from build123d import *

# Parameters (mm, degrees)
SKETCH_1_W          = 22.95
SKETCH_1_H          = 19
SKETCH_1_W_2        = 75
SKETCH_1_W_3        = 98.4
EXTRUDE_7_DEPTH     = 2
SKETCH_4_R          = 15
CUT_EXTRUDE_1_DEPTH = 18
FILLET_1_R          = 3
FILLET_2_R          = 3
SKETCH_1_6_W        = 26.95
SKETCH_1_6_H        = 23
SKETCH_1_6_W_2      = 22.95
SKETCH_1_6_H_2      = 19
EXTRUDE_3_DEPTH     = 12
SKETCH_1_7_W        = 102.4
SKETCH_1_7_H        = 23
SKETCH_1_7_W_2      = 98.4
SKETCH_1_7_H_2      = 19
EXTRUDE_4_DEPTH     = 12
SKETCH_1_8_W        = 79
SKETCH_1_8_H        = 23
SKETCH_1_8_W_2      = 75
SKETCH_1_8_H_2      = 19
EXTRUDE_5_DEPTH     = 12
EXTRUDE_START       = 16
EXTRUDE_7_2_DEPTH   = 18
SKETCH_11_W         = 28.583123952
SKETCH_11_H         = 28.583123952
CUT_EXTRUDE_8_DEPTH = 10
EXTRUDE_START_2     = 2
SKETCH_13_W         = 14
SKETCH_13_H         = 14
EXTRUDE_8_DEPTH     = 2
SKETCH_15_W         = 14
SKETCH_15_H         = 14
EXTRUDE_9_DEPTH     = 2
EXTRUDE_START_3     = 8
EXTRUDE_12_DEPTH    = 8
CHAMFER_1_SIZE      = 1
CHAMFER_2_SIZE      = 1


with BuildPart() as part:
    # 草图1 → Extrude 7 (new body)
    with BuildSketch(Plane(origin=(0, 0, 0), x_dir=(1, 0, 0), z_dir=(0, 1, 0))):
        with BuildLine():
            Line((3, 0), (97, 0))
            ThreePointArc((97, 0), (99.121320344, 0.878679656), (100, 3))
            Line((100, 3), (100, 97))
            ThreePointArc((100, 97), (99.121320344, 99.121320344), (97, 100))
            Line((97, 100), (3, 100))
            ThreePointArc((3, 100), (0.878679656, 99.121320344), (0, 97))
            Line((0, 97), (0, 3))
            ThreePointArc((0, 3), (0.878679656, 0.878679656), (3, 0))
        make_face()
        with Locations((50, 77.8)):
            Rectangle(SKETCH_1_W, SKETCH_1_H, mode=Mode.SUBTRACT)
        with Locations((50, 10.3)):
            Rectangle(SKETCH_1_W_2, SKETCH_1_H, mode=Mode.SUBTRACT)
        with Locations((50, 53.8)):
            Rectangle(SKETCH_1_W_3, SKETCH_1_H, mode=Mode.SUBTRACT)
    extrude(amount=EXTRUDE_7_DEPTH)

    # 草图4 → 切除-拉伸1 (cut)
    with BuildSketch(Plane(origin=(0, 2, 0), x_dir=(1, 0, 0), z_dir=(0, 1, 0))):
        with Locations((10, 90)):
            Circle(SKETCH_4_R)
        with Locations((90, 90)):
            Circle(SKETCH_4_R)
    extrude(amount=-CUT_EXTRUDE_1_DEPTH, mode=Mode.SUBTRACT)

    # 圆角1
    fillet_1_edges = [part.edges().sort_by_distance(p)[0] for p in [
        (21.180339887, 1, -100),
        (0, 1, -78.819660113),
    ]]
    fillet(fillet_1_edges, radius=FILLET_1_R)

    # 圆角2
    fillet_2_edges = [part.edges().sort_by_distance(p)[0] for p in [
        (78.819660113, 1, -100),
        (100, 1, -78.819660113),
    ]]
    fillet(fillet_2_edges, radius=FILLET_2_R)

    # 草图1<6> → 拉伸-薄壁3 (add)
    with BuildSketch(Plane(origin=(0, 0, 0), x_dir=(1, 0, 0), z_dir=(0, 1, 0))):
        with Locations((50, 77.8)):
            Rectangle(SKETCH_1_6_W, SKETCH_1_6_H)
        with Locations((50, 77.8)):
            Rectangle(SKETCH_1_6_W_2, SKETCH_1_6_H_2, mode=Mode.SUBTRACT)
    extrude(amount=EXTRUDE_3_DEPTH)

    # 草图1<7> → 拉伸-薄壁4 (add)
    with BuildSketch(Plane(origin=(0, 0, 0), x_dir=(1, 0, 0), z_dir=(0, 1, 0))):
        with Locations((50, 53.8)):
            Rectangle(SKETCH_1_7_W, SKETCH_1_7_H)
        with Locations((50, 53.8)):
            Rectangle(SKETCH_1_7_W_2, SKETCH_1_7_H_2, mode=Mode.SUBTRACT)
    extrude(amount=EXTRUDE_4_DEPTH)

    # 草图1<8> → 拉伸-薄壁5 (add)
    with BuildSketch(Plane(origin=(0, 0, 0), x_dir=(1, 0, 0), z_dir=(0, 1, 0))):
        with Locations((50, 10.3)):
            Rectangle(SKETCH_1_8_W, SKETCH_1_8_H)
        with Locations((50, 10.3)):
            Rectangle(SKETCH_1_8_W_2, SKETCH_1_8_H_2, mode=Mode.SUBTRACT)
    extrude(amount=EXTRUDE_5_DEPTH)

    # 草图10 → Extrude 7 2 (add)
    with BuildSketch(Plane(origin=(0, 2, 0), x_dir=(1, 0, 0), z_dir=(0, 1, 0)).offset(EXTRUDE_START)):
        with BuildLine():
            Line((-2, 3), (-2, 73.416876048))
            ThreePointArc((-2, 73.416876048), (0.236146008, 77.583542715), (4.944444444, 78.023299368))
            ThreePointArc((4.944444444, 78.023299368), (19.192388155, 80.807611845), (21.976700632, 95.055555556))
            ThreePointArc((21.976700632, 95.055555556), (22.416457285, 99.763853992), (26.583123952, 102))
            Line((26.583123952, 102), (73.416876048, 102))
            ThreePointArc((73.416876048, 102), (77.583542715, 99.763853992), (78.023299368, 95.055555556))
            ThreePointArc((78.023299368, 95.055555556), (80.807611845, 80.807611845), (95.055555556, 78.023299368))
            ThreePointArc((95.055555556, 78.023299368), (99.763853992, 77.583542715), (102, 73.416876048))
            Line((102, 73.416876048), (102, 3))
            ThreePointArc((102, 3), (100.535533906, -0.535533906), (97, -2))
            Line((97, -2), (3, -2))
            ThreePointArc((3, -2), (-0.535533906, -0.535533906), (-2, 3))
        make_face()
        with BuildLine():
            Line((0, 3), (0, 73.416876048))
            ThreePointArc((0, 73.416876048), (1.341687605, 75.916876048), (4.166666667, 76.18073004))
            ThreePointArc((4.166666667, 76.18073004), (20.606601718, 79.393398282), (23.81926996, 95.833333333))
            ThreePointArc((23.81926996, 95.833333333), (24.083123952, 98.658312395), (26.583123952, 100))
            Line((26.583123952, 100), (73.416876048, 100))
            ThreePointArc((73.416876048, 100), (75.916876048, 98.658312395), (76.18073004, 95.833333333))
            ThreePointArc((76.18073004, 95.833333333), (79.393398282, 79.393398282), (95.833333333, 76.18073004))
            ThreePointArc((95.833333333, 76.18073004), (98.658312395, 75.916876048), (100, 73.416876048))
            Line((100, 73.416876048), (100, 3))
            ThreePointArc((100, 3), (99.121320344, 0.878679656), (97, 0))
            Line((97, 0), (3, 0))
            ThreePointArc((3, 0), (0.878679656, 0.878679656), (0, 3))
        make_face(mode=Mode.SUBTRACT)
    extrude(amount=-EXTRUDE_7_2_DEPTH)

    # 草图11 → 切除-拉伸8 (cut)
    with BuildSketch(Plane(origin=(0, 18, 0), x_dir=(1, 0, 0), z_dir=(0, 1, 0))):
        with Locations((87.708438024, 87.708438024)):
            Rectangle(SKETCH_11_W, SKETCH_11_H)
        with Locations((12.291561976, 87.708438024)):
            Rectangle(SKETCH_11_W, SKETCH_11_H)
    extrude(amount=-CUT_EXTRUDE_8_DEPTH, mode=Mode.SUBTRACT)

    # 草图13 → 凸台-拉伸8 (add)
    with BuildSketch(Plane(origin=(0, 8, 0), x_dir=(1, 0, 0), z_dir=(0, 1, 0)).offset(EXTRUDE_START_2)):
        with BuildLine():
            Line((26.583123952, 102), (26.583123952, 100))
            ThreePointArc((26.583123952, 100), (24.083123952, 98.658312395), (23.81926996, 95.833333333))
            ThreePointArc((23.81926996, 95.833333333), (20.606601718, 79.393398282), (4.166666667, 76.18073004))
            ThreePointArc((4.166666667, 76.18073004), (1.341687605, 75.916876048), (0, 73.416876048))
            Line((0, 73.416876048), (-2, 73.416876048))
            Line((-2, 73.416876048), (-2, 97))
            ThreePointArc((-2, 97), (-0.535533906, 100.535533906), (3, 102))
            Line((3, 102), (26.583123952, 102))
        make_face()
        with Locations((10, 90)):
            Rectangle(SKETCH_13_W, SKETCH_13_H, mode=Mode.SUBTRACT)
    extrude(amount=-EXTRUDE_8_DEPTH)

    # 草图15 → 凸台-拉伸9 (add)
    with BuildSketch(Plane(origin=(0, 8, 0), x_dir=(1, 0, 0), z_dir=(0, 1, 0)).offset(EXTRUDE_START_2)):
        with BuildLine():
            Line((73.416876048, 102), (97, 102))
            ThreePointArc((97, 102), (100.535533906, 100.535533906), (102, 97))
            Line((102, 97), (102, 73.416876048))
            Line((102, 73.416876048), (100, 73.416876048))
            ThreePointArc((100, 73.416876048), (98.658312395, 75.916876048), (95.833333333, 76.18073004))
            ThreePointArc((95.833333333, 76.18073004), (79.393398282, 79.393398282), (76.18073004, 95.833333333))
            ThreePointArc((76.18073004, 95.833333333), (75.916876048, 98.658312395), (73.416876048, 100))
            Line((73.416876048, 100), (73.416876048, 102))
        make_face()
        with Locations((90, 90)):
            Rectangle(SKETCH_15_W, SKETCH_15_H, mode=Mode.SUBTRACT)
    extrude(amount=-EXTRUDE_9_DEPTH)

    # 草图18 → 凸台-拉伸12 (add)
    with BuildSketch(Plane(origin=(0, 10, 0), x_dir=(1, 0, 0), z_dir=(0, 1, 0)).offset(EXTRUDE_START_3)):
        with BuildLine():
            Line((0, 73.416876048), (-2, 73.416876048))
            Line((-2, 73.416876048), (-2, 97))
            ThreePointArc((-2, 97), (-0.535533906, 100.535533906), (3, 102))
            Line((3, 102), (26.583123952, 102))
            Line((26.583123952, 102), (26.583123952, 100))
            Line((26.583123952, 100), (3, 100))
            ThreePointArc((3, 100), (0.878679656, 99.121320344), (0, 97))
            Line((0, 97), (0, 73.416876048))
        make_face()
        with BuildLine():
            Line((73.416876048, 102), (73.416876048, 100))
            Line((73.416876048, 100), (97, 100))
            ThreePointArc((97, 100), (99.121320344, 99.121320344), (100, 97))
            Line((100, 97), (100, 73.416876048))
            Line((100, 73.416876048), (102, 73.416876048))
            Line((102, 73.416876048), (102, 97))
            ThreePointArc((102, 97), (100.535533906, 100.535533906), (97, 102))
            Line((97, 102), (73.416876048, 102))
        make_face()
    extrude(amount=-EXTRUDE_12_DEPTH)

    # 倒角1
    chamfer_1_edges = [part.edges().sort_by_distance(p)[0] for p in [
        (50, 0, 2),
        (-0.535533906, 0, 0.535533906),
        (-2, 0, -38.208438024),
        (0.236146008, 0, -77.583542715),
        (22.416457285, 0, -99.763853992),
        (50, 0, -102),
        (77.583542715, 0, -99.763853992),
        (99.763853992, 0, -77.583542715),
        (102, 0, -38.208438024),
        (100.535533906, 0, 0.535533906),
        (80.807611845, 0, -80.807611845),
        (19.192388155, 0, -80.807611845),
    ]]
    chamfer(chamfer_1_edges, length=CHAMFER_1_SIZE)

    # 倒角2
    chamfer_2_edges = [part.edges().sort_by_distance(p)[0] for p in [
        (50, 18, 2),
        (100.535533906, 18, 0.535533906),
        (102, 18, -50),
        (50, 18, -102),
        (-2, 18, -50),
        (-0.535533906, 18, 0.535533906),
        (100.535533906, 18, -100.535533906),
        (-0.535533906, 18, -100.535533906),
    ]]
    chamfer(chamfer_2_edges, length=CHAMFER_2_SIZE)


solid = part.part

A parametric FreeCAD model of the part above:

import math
import FreeCAD as App
import Part
import Sketcher
Q = App.Units.Quantity


def edges_at(feature, points):
    """Names of the edges that pass closest to the given points."""
    edges = feature.Shape.Edges
    near = lambda p: min(range(len(edges)), key=lambda i: edges[i].distToShape(Part.Vertex(*p))[0])
    return sorted({f"Edge{near(p) + 1}" for p in points})


def add_polygon(sketch, points):
    """Adds a closed chain of lines whose ends are joined by coincident constraints."""
    first, n = sketch.GeometryCount, len(points)
    for a, b in zip(points, points[1:] + points[:1]):
        sketch.addGeometry(Part.LineSegment(App.Vector(*a, 0), App.Vector(*b, 0)), False)
    for i in range(n):
        sketch.addConstraint(Sketcher.Constraint("Coincident", first + i, 2, first + (i + 1) % n, 1))

doc = App.newDocument("Part")
params = doc.addObject("Spreadsheet::Sheet", "Params")
for row, (alias, value) in enumerate([
    ("sketch1_radius", "3 mm"),
    ("sketch1_width", "94 mm"),
    ("sketch1_width2", "75 mm"),
    ("sketch1_height", "19 mm"),
    ("sketch1_width3", "98.4 mm"),
    ("pad1_length", "2 mm"),
    ("sketch2_diameter", "30 mm"),
    ("pocket1_length", "18 mm"),
    ("fillet_radius", "3 mm"),
    ("fillet2_radius", "3 mm"),
    ("sketch3_height", "23 mm"),
    ("sketch3_height2", "19 mm"),
    ("sketch3_width", "26.95 mm"),
    ("pad2_length", "12 mm"),
    ("sketch4_height", "23 mm"),
    ("sketch4_height2", "19 mm"),
    ("sketch4_width", "102.4 mm"),
    ("sketch4_width2", "98.4 mm"),
    ("pad3_length", "12 mm"),
    ("sketch5_width", "79 mm"),
    ("sketch5_width2", "75 mm"),
    ("sketch5_height", "23 mm"),
    ("sketch5_height2", "19 mm"),
    ("pad4_length", "12 mm"),
    ("sketch6_radius", "5 mm"),
    ("sketch6_radius2", "13 mm"),
    ("sketch6_radius3", "3 mm"),
    ("sketch6_width", "94 mm"),
    ("pad5_length", "18 mm"),
    ("pocket2_length", "10 mm"),
    ("sketch8_radius", "5 mm"),
    ("sketch8_radius2", "3 mm"),
    ("sketch8_radius3", "15 mm"),
    ("sketch8_width", "14 mm"),
    ("pad6_length", "2 mm"),
    ("sketch9_radius", "3 mm"),
    ("sketch9_radius2", "15 mm"),
    ("sketch9_radius3", "5 mm"),
    ("sketch9_width", "14 mm"),
    ("pad7_length", "2 mm"),
    ("sketch10_radius", "3 mm"),
    ("sketch10_radius2", "5 mm"),
    ("pad8_length", "8 mm"),
    ("chamfer_size", "1 mm"),
    ("chamfer2_size", "1 mm"),
], start=1):
    params.set(f"A{row}", alias)
    params.set(f"B{row}", "=" + value)
    params.setAlias(f"B{row}", alias)

body = doc.addObject("PartDesign::Body", "Body")

# Sketch on XZ plane
sketch1 = doc.addObject("Sketcher::SketchObject", "Sketch")
body.addObject(sketch1)
sketch1.AttachmentSupport = (doc.XZ_Plane, [""])
sketch1.MapMode = "FlatFace"
sketch1.addGeometry(Part.LineSegment(App.Vector(3, 0, 0), App.Vector(97, 0, 0)), False)  # 0
sketch1.addGeometry(Part.ArcOfCircle(Part.Circle(App.Vector(97, -3, 0), App.Vector(0, 0, 1), 3), math.radians(0), math.radians(90)), False)  # 1
sketch1.addGeometry(Part.LineSegment(App.Vector(100, -3, 0), App.Vector(100, -97, 0)), False)  # 2
sketch1.addGeometry(Part.ArcOfCircle(Part.Circle(App.Vector(97, -97, 0), App.Vector(0, 0, 1), 3), math.radians(-90), math.radians(0)), False)  # 3
sketch1.addGeometry(Part.LineSegment(App.Vector(97, -100, 0), App.Vector(3, -100, 0)), False)  # 4
sketch1.addGeometry(Part.ArcOfCircle(Part.Circle(App.Vector(3, -97, 0), App.Vector(0, 0, 1), 3), math.radians(180), math.radians(270)), False)  # 5
sketch1.addGeometry(Part.LineSegment(App.Vector(0, -97, 0), App.Vector(0, -3, 0)), False)  # 6
sketch1.addGeometry(Part.ArcOfCircle(Part.Circle(App.Vector(3, -3, 0), App.Vector(0, 0, 1), 3), math.radians(90), math.radians(180)), False)  # 7
add_polygon(sketch1, [(87.5, -0.8), (12.5, -0.8), (12.5, -19.8), (87.5, -19.8)])  # lines 8-11
add_polygon(sketch1, [(99.2, -44.3), (0.8, -44.3), (0.8, -63.3), (99.2, -63.3)])  # lines 12-15
add_polygon(sketch1, [(61.475, -68.3), (38.525, -68.3), (38.525, -87.3), (61.475, -87.3)])  # lines 16-19
sketch1.addConstraint([
    Sketcher.Constraint("Tangent", 0, 2, 1, 2),
    Sketcher.Constraint("Tangent", 1, 1, 2, 1),
    Sketcher.Constraint("Tangent", 2, 2, 3, 2),
    Sketcher.Constraint("Tangent", 3, 1, 4, 1),
    Sketcher.Constraint("Tangent", 4, 2, 5, 2),
    Sketcher.Constraint("Tangent", 5, 1, 6, 1),
    Sketcher.Constraint("Tangent", 6, 2, 7, 2),
    Sketcher.Constraint("Tangent", 7, 1, 0, 1),
    Sketcher.Constraint("Horizontal", 0),
    Sketcher.Constraint("Vertical", 2),
    Sketcher.Constraint("Horizontal", 4),
    Sketcher.Constraint("Vertical", 6),
    Sketcher.Constraint("Horizontal", 8),
    Sketcher.Constraint("Vertical", 9),
    Sketcher.Constraint("Horizontal", 10),
    Sketcher.Constraint("Vertical", 11),
    Sketcher.Constraint("Horizontal", 12),
    Sketcher.Constraint("Vertical", 13),
    Sketcher.Constraint("Horizontal", 14),
    Sketcher.Constraint("Vertical", 15),
    Sketcher.Constraint("Horizontal", 16),
    Sketcher.Constraint("Vertical", 17),
    Sketcher.Constraint("Horizontal", 18),
    Sketcher.Constraint("Vertical", 19),
    Sketcher.Constraint("Equal", 1, 3),
    Sketcher.Constraint("Equal", 3, 5),
    Sketcher.Constraint("Equal", 5, 7),
    Sketcher.Constraint("PointOnObject", 0, 2, -1),
    Sketcher.Constraint("PointOnObject", 5, 1, -2),
    Sketcher.Constraint("Equal", 4, 2),
    Sketcher.Constraint("Equal", 11, 13),
    Sketcher.Constraint("Equal", 15, 17),
    Sketcher.Constraint("Radius", 1, Q("3 mm")),
    Sketcher.Constraint("DistanceX", 0, 1, 0, 2, Q("94 mm")),
    Sketcher.Constraint("DistanceX", 8, 2, 8, 1, Q("75 mm")),
    Sketcher.Constraint("DistanceY", 9, 2, 9, 1, Q("19 mm")),
    Sketcher.Constraint("DistanceX", 12, 2, 12, 1, Q("98.4 mm")),
    Sketcher.Constraint("DistanceY", 16, 2, 13, 2, Q("5 mm")),
    Sketcher.Constraint("DistanceX", 16, 2, 16, 1, Q("22.95 mm")),
    Sketcher.Constraint("DistanceX", -1, 1, 8, 2, Q("12.5 mm")),
    Sketcher.Constraint("DistanceY", 8, 2, -1, 1, Q("0.8 mm")),
    Sketcher.Constraint("DistanceX", -1, 1, 12, 2, Q("0.8 mm")),
    Sketcher.Constraint("DistanceY", 12, 2, -1, 1, Q("44.3 mm")),
    Sketcher.Constraint("DistanceX", -1, 1, 16, 2, Q("38.525 mm")),
])
sketch1.setExpression("Constraints[44]", "Params.sketch1_radius")
sketch1.setExpression("Constraints[45]", "Params.sketch1_width")
sketch1.setExpression("Constraints[46]", "Params.sketch1_width2")
sketch1.setExpression("Constraints[47]", "Params.sketch1_height")
sketch1.setExpression("Constraints[48]", "Params.sketch1_width3")
pad1 = doc.addObject("PartDesign::Pad", "Pad")
body.addObject(pad1)
pad1.Profile = sketch1
pad1.setExpression("Length", "Params.pad1_length")
pad1.Reversed = True

# Sketch on XZ plane
sketch2 = doc.addObject("Sketcher::SketchObject", "Sketch001")
body.addObject(sketch2)
sketch2.AttachmentSupport = (doc.XZ_Plane, [""])
sketch2.MapMode = "FlatFace"
sketch2.AttachmentOffset = App.Placement(App.Vector(0, 0, -2), App.Rotation())
sketch2.addGeometry([
    Part.Circle(App.Vector(10, -90, 0), App.Vector(0, 0, 1), 15),
    Part.Circle(App.Vector(90, -90, 0), App.Vector(0, 0, 1), 15),
], False)
sketch2.addConstraint([
    Sketcher.Constraint("Equal", 0, 1),
    Sketcher.Constraint("Horizontal", 0, 3, 1, 3),
    Sketcher.Constraint("Diameter", 0, Q("30 mm")),
    Sketcher.Constraint("DistanceX", -1, 1, 0, 3, Q("10 mm")),
    Sketcher.Constraint("DistanceY", 0, 3, -1, 1, Q("90 mm")),
    Sketcher.Constraint("DistanceX", -1, 1, 1, 3, Q("90 mm")),
])
sketch2.setExpression("Constraints[2]", "Params.sketch2_diameter")
pocket1 = doc.addObject("PartDesign::Pocket", "Pocket")
body.addObject(pocket1)
pocket1.Profile = sketch2
pocket1.setExpression("Length", "Params.pocket1_length")
pocket1.Reversed = True
doc.recompute()

fillet = doc.addObject("PartDesign::Fillet", "Fillet")
body.addObject(fillet)
fillet.Base = (pocket1, edges_at(pocket1, [(21.18, 1, -100), (0, 1, -78.82)]))
fillet.setExpression("Radius", "Params.fillet_radius")
doc.recompute()

fillet2 = doc.addObject("PartDesign::Fillet", "Fillet001")
body.addObject(fillet2)
fillet2.Base = (fillet, edges_at(fillet, [(78.82, 1, -100), (100, 1, -78.82)]))
fillet2.setExpression("Radius", "Params.fillet2_radius")

# Sketch on XZ plane
sketch3 = doc.addObject("Sketcher::SketchObject", "Sketch002")
body.addObject(sketch3)
sketch3.AttachmentSupport = (doc.XZ_Plane, [""])
sketch3.MapMode = "FlatFace"
add_polygon(sketch3, [(36.525, -89.3), (36.525, -66.3), (63.475, -66.3), (63.475, -89.3)])  # lines 0-3
add_polygon(sketch3, [(61.475, -68.3), (38.525, -68.3), (38.525, -87.3), (61.475, -87.3)])  # lines 4-7
sketch3.addConstraint([
    Sketcher.Constraint("Vertical", 0),
    Sketcher.Constraint("Horizontal", 1),
    Sketcher.Constraint("Vertical", 2),
    Sketcher.Constraint("Horizontal", 3),
    Sketcher.Constraint("Horizontal", 4),
    Sketcher.Constraint("Vertical", 5),
    Sketcher.Constraint("Horizontal", 6),
    Sketcher.Constraint("Vertical", 7),
    Sketcher.Constraint("DistanceY", 0, 1, 0, 2, Q("23 mm")),
    Sketcher.Constraint("DistanceY", 5, 2, 5, 1, Q("19 mm")),
    Sketcher.Constraint("DistanceX", 0, 2, 4, 2, Q("2 mm")),
    Sketcher.Constraint("DistanceY", 4, 2, 0, 2, Q("2 mm")),
    Sketcher.Constraint("DistanceX", 6, 2, 2, 2, Q("2 mm")),
    Sketcher.Constraint("DistanceX", 1, 1, 1, 2, Q("26.95 mm")),
    Sketcher.Constraint("DistanceY", 0, 2, -1, 1, Q("66.3 mm")),
    Sketcher.Constraint("DistanceX", -1, 1, 0, 2, Q("36.525 mm")),
])
sketch3.setExpression("Constraints[16]", "Params.sketch3_height")
sketch3.setExpression("Constraints[17]", "Params.sketch3_height2")
sketch3.setExpression("Constraints[21]", "Params.sketch3_width")
pad2 = doc.addObject("PartDesign::Pad", "Pad001")
body.addObject(pad2)
pad2.Profile = sketch3
pad2.setExpression("Length", "Params.pad2_length")
pad2.Reversed = True

# Sketch on XZ plane
sketch4 = doc.addObject("Sketcher::SketchObject", "Sketch003")
body.addObject(sketch4)
sketch4.AttachmentSupport = (doc.XZ_Plane, [""])
sketch4.MapMode = "FlatFace"
add_polygon(sketch4, [(-1.2, -65.3), (-1.2, -42.3), (101.2, -42.3), (101.2, -65.3)])  # lines 0-3
add_polygon(sketch4, [(99.2, -44.3), (0.8, -44.3), (0.8, -63.3), (99.2, -63.3)])  # lines 4-7
sketch4.addConstraint([
    Sketcher.Constraint("Vertical", 0),
    Sketcher.Constraint("Horizontal", 1),
    Sketcher.Constraint("Vertical", 2),
    Sketcher.Constraint("Horizontal", 3),
    Sketcher.Constraint("Horizontal", 4),
    Sketcher.Constraint("Vertical", 5),
    Sketcher.Constraint("Horizontal", 6),
    Sketcher.Constraint("Vertical", 7),
    Sketcher.Constraint("DistanceY", 0, 1, 0, 2, Q("23 mm")),
    Sketcher.Constraint("DistanceY", 5, 2, 5, 1, Q("19 mm")),
    Sketcher.Constraint("DistanceX", 1, 1, 1, 2, Q("102.4 mm")),
    Sketcher.Constraint("DistanceX", 4, 2, 4, 1, Q("98.4 mm")),
    Sketcher.Constraint("DistanceX", 0, 2, 4, 2, Q("2 mm")),
    Sketcher.Constraint("DistanceY", 4, 2, 0, 2, Q("2 mm")),
    Sketcher.Constraint("DistanceX", 0, 2, -1, 1, Q("1.2 mm")),
    Sketcher.Constraint("DistanceY", 0, 2, -1, 1, Q("42.3 mm")),
])
sketch4.setExpression("Constraints[16]", "Params.sketch4_height")
sketch4.setExpression("Constraints[17]", "Params.sketch4_height2")
sketch4.setExpression("Constraints[18]", "Params.sketch4_width")
sketch4.setExpression("Constraints[19]", "Params.sketch4_width2")
pad3 = doc.addObject("PartDesign::Pad", "Pad002")
body.addObject(pad3)
pad3.Profile = sketch4
pad3.setExpression("Length", "Params.pad3_length")
pad3.Reversed = True

# Sketch on XZ plane
sketch5 = doc.addObject("Sketcher::SketchObject", "Sketch004")
body.addObject(sketch5)
sketch5.AttachmentSupport = (doc.XZ_Plane, [""])
sketch5.MapMode = "FlatFace"
add_polygon(sketch5, [(10.5, -21.8), (10.5, 1.2), (89.5, 1.2), (89.5, -21.8)])  # lines 0-3
add_polygon(sketch5, [(87.5, -0.8), (12.5, -0.8), (12.5, -19.8), (87.5, -19.8)])  # lines 4-7
sketch5.addConstraint([
    Sketcher.Constraint("Vertical", 0),
    Sketcher.Constraint("Horizontal", 1),
    Sketcher.Constraint("Vertical", 2),
    Sketcher.Constraint("Horizontal", 3),
    Sketcher.Constraint("Horizontal", 4),
    Sketcher.Constraint("Vertical", 5),
    Sketcher.Constraint("Horizontal", 6),
    Sketcher.Constraint("Vertical", 7),
    Sketcher.Constraint("DistanceX", 1, 1, 1, 2, Q("79 mm")),
    Sketcher.Constraint("DistanceX", 4, 2, 4, 1, Q("75 mm")),
    Sketcher.Constraint("DistanceY", 0, 1, 0, 2, Q("23 mm")),
    Sketcher.Constraint("DistanceY", 5, 2, 5, 1, Q("19 mm")),
    Sketcher.Constraint("DistanceX", 0, 2, 4, 2, Q("2 mm")),
    Sketcher.Constraint("DistanceY", 4, 2, 0, 2, Q("2 mm")),
    Sketcher.Constraint("DistanceX", -1, 1, 0, 2, Q("10.5 mm")),
    Sketcher.Constraint("DistanceY", -1, 1, 0, 2, Q("1.2 mm")),
])
sketch5.setExpression("Constraints[16]", "Params.sketch5_width")
sketch5.setExpression("Constraints[17]", "Params.sketch5_width2")
sketch5.setExpression("Constraints[18]", "Params.sketch5_height")
sketch5.setExpression("Constraints[19]", "Params.sketch5_height2")
pad4 = doc.addObject("PartDesign::Pad", "Pad003")
body.addObject(pad4)
pad4.Profile = sketch5
pad4.setExpression("Length", "Params.pad4_length")
pad4.Reversed = True

# Sketch on XZ plane
sketch6 = doc.addObject("Sketcher::SketchObject", "Sketch005")
body.addObject(sketch6)
sketch6.AttachmentSupport = (doc.XZ_Plane, [""])
sketch6.MapMode = "FlatFace"
sketch6.AttachmentOffset = App.Placement(App.Vector(0, 0, -18), App.Rotation())
sketch6.addGeometry([
    Part.LineSegment(App.Vector(-2, -73.416876, 0), App.Vector(-2, -3, 0)),  # 0
    Part.ArcOfCircle(Part.Circle(App.Vector(3, -3, 0), App.Vector(0, 0, 1), 5), math.radians(90), math.radians(180)),  # 1
    Part.LineSegment(App.Vector(3, 2, 0), App.Vector(97, 2, 0)),  # 2
    Part.ArcOfCircle(Part.Circle(App.Vector(97, -3, 0), App.Vector(0, 0, 1), 5), math.radians(0), math.radians(90)),  # 3
    Part.LineSegment(App.Vector(102, -3, 0), App.Vector(102, -73.416876, 0)),  # 4
    Part.ArcOfCircle(Part.Circle(App.Vector(97, -73.416876, 0), App.Vector(0, 0, 1), 5), math.radians(-112.88538), math.radians(0)),  # 5
    Part.ArcOfCircle(Part.Circle(App.Vector(90, -90, 0), App.Vector(0, 0, 1), 13), math.radians(67.11462), math.radians(202.88538)),  # 6
    Part.ArcOfCircle(Part.Circle(App.Vector(73.416876, -97, 0), App.Vector(0, 0, 1), 5), math.radians(-90), math.radians(22.88538)),  # 7
    Part.LineSegment(App.Vector(73.416876, -102, 0), App.Vector(26.583124, -102, 0)),  # 8
    Part.ArcOfCircle(Part.Circle(App.Vector(26.583124, -97, 0), App.Vector(0, 0, 1), 5), math.radians(157.11462), math.radians(270)),  # 9
    Part.ArcOfCircle(Part.Circle(App.Vector(10, -90, 0), App.Vector(0, 0, 1), 13), math.radians(-22.88538), math.radians(112.88538)),  # 10
    Part.ArcOfCircle(Part.Circle(App.Vector(3, -73.416876, 0), App.Vector(0, 0, 1), 5), math.radians(180), math.radians(292.88538)),  # 11
    Part.LineSegment(App.Vector(0, -3, 0), App.Vector(0, -73.416876, 0)),  # 12
    Part.ArcOfCircle(Part.Circle(App.Vector(3, -73.416876, 0), App.Vector(0, 0, 1), 3), math.radians(180), math.radians(292.88538)),  # 13
    Part.ArcOfCircle(Part.Circle(App.Vector(10, -90, 0), App.Vector(0, 0, 1), 15), math.radians(-22.88538), math.radians(112.88538)),  # 14
    Part.ArcOfCircle(Part.Circle(App.Vector(26.583124, -97, 0), App.Vector(0, 0, 1), 3), math.radians(157.11462), math.radians(270)),  # 15
    Part.LineSegment(App.Vector(26.583124, -100, 0), App.Vector(73.416876, -100, 0)),  # 16
    Part.ArcOfCircle(Part.Circle(App.Vector(73.416876, -97, 0), App.Vector(0, 0, 1), 3), math.radians(-90), math.radians(22.88538)),  # 17
    Part.ArcOfCircle(Part.Circle(App.Vector(90, -90, 0), App.Vector(0, 0, 1), 15), math.radians(67.11462), math.radians(202.88538)),  # 18
    Part.ArcOfCircle(Part.Circle(App.Vector(97, -73.416876, 0), App.Vector(0, 0, 1), 3), math.radians(-112.88538), math.radians(0)),  # 19
    Part.LineSegment(App.Vector(100, -73.416876, 0), App.Vector(100, -3, 0)),  # 20
    Part.ArcOfCircle(Part.Circle(App.Vector(97, -3, 0), App.Vector(0, 0, 1), 3), math.radians(0), math.radians(90)),  # 21
    Part.LineSegment(App.Vector(97, 0, 0), App.Vector(3, 0, 0)),  # 22
    Part.ArcOfCircle(Part.Circle(App.Vector(3, -3, 0), App.Vector(0, 0, 1), 3), math.radians(90), math.radians(180)),  # 23
], False)
sketch6.addConstraint([
    Sketcher.Constraint("Tangent", 0, 2, 1, 2),
    Sketcher.Constraint("Tangent", 1, 1, 2, 1),
    Sketcher.Constraint("Tangent", 2, 2, 3, 2),
    Sketcher.Constraint("Tangent", 3, 1, 4, 1),
    Sketcher.Constraint("Tangent", 4, 2, 5, 2),
    Sketcher.Constraint("Tangent", 5, 1, 6, 1),
    Sketcher.Constraint("Tangent", 6, 2, 7, 2),
    Sketcher.Constraint("Tangent", 7, 1, 8, 1),
    Sketcher.Constraint("Tangent", 8, 2, 9, 2),
    Sketcher.Constraint("Tangent", 9, 1, 10, 1),
    Sketcher.Constraint("Tangent", 10, 2, 11, 2),
    Sketcher.Constraint("Tangent", 11, 1, 0, 1),
    Sketcher.Constraint("Tangent", 12, 2, 13, 1),
    Sketcher.Constraint("Tangent", 13, 2, 14, 2),
    Sketcher.Constraint("Tangent", 14, 1, 15, 1),
    Sketcher.Constraint("Tangent", 15, 2, 16, 1),
    Sketcher.Constraint("Tangent", 16, 2, 17, 1),
    Sketcher.Constraint("Tangent", 17, 2, 18, 2),
    Sketcher.Constraint("Tangent", 18, 1, 19, 1),
    Sketcher.Constraint("Tangent", 19, 2, 20, 1),
    Sketcher.Constraint("Tangent", 20, 2, 21, 1),
    Sketcher.Constraint("Tangent", 21, 2, 22, 1),
    Sketcher.Constraint("Tangent", 22, 2, 23, 1),
    Sketcher.Constraint("Tangent", 23, 2, 12, 1),
    Sketcher.Constraint("Vertical", 0),
    Sketcher.Constraint("Horizontal", 2),
    Sketcher.Constraint("Vertical", 4),
    Sketcher.Constraint("Horizontal", 8),
    Sketcher.Constraint("Vertical", 12),
    Sketcher.Constraint("Horizontal", 16),
    Sketcher.Constraint("Vertical", 20),
    Sketcher.Constraint("Horizontal", 22),
    Sketcher.Constraint("Coincident", 13, 3, 11, 3),
    Sketcher.Constraint("Coincident", 14, 3, 10, 3),
    Sketcher.Constraint("Coincident", 15, 3, 9, 3),
    Sketcher.Constraint("Coincident", 17, 3, 7, 3),
    Sketcher.Constraint("Coincident", 18, 3, 6, 3),
    Sketcher.Constraint("Coincident", 19, 3, 5, 3),
    Sketcher.Constraint("Coincident", 21, 3, 3, 3),
    Sketcher.Constraint("Equal", 1, 3),
    Sketcher.Constraint("Equal", 3, 5),
    Sketcher.Constraint("Equal", 5, 7),
    Sketcher.Constraint("Equal", 7, 9),
    Sketcher.Constraint("Equal", 6, 10),
    Sketcher.Constraint("Equal", 9, 11),
    Sketcher.Constraint("Equal", 21, 23),
    Sketcher.Constraint("PointOnObject", 12, 2, -2),
    Sketcher.Constraint("PointOnObject", 21, 2, -1),
    Sketcher.Constraint("Horizontal", 6, 3, 10, 3),
    Sketcher.Constraint("Horizontal", 5, 3, 11, 3),
    Sketcher.Constraint("Radius", 1, Q("5 mm")),
    Sketcher.Constraint("Radius", 6, Q("13 mm")),
    Sketcher.Constraint("Radius", 13, Q("3 mm")),
    Sketcher.Constraint("DistanceX", 2, 1, 2, 2, Q("94 mm")),
    Sketcher.Constraint("DistanceX", -1, 1, 6, 3, Q("90 mm")),
    Sketcher.Constraint("DistanceY", 6, 3, -1, 1, Q("90 mm")),
    Sketcher.Constraint("DistanceY", 7, 3, -1, 1, Q("97 mm")),
])
sketch6.setExpression("Constraints[50]", "Params.sketch6_radius")
sketch6.setExpression("Constraints[51]", "Params.sketch6_radius2")
sketch6.setExpression("Constraints[52]", "Params.sketch6_radius3")
sketch6.setExpression("Constraints[53]", "Params.sketch6_width")
pad5 = doc.addObject("PartDesign::Pad", "Pad004")
body.addObject(pad5)
pad5.Profile = sketch6
pad5.setExpression("Length", "Params.pad5_length")

# Sketch on XZ plane
sketch7 = doc.addObject("Sketcher::SketchObject", "Sketch006")
body.addObject(sketch7)
sketch7.AttachmentSupport = (doc.XZ_Plane, [""])
sketch7.MapMode = "FlatFace"
sketch7.AttachmentOffset = App.Placement(App.Vector(0, 0, -18), App.Rotation())
add_polygon(sketch7, [(73.416876, -102), (73.416876, -73.416876), (102, -73.416876), (102, -102)])  # lines 0-3
add_polygon(sketch7, [(-2, -102), (-2, -73.416876), (26.583124, -73.416876), (26.583124, -102)])  # lines 4-7
sketch7.addConstraint([
    Sketcher.Constraint("Vertical", 0),
    Sketcher.Constraint("Horizontal", 1),
    Sketcher.Constraint("Vertical", 2),
    Sketcher.Constraint("Horizontal", 3),
    Sketcher.Constraint("Vertical", 4),
    Sketcher.Constraint("Horizontal", 5),
    Sketcher.Constraint("Vertical", 6),
    Sketcher.Constraint("Horizontal", 7),
    Sketcher.Constraint("Horizontal", 1, 2, 4, 2),
    Sketcher.Constraint("Horizontal", 3, 2, 6, 2),
    Sketcher.Constraint("Equal", 3, 5),
    Sketcher.Constraint("Equal", 7, 0),
    Sketcher.Constraint("DistanceX", -1, 1, 1, 2, Q("102 mm")),
    Sketcher.Constraint("DistanceY", 2, 2, -1, 1, Q("102 mm")),
    Sketcher.Constraint("DistanceX", 4, 2, -1, 1, Q("2 mm")),
    Sketcher.Constraint("DistanceX", 1, 1, 1, 2, Q("28.583124 mm")),
])
pocket2 = doc.addObject("PartDesign::Pocket", "Pocket001")
body.addObject(pocket2)
pocket2.Profile = sketch7
pocket2.setExpression("Length", "Params.pocket2_length")
pocket2.Reversed = True

# Sketch on XZ plane
sketch8 = doc.addObject("Sketcher::SketchObject", "Sketch007")
body.addObject(sketch8)
sketch8.AttachmentSupport = (doc.XZ_Plane, [""])
sketch8.MapMode = "FlatFace"
sketch8.AttachmentOffset = App.Placement(App.Vector(0, 0, -10), App.Rotation())
sketch8.addGeometry(Part.LineSegment(App.Vector(26.583124, -100, 0), App.Vector(26.583124, -102, 0)), False)  # 0
sketch8.addGeometry(Part.LineSegment(App.Vector(26.583124, -102, 0), App.Vector(3, -102, 0)), False)  # 1
sketch8.addGeometry(Part.ArcOfCircle(Part.Circle(App.Vector(3, -97, 0), App.Vector(0, 0, 1), 5), math.radians(180), math.radians(270)), False)  # 2
sketch8.addGeometry(Part.LineSegment(App.Vector(-2, -97, 0), App.Vector(-2, -73.416876, 0)), False)  # 3
sketch8.addGeometry(Part.LineSegment(App.Vector(-2, -73.416876, 0), App.Vector(0, -73.416876, 0)), False)  # 4
sketch8.addGeometry(Part.ArcOfCircle(Part.Circle(App.Vector(3, -73.416876, 0), App.Vector(0, 0, 1), 3), math.radians(180), math.radians(292.88538)), False)  # 5
sketch8.addGeometry(Part.ArcOfCircle(Part.Circle(App.Vector(10, -90, 0), App.Vector(0, 0, 1), 15), math.radians(-22.88538), math.radians(112.88538)), False)  # 6
sketch8.addGeometry(Part.ArcOfCircle(Part.Circle(App.Vector(26.583124, -97, 0), App.Vector(0, 0, 1), 3), math.radians(157.11462), math.radians(270)), False)  # 7
add_polygon(sketch8, [(3, -83), (3, -97), (17, -97), (17, -83)])  # lines 8-11
sketch8.addConstraint([
    Sketcher.Constraint("Coincident", 0, 2, 1, 1),
    Sketcher.Constraint("Tangent", 1, 2, 2, 2),
    Sketcher.Constraint("Tangent", 2, 1, 3, 1),
    Sketcher.Constraint("Coincident", 3, 2, 4, 1),
    Sketcher.Constraint("Coincident", 4, 2, 5, 1),
    Sketcher.Constraint("Tangent", 5, 2, 6, 2),
    Sketcher.Constraint("Tangent", 6, 1, 7, 1),
    Sketcher.Constraint("Coincident", 7, 2, 0, 1),
    Sketcher.Constraint("Vertical", 0),
    Sketcher.Constraint("Horizontal", 1),
    Sketcher.Constraint("Vertical", 3),
    Sketcher.Constraint("Horizontal", 4),
    Sketcher.Constraint("Vertical", 8),
    Sketcher.Constraint("Horizontal", 9),
    Sketcher.Constraint("Vertical", 10),
    Sketcher.Constraint("Horizontal", 11),
    Sketcher.Constraint("Coincident", 8, 2, 2, 3),
    Sketcher.Constraint("Equal", 5, 7),
    Sketcher.Constraint("PointOnObject", 4, 2, -2),
    Sketcher.Constraint("Horizontal", 2, 3, 7, 3),
    Sketcher.Constraint("Horizontal", 5, 3, 3, 2),
    Sketcher.Constraint("Vertical", 2, 3, 5, 3),
    Sketcher.Constraint("Vertical", 7, 3, 0, 2),
    Sketcher.Constraint("Equal", 1, 3),
    Sketcher.Constraint("Equal", 11, 8),
    Sketcher.Constraint("Radius", 2, Q("5 mm")),
    Sketcher.Constraint("Radius", 5, Q("3 mm")),
    Sketcher.Constraint("Radius", 6, Q("15 mm")),
    Sketcher.Constraint("DistanceX", 9, 1, 9, 2, Q("14 mm")),
    Sketcher.Constraint("DistanceY", 2, 3, -1, 1, Q("97 mm")),
    Sketcher.Constraint("DistanceX", -1, 1, 6, 3, Q("10 mm")),
])
sketch8.setExpression("Constraints[29]", "Params.sketch8_radius")
sketch8.setExpression("Constraints[30]", "Params.sketch8_radius2")
sketch8.setExpression("Constraints[31]", "Params.sketch8_radius3")
sketch8.setExpression("Constraints[32]", "Params.sketch8_width")
pad6 = doc.addObject("PartDesign::Pad", "Pad005")
body.addObject(pad6)
pad6.Profile = sketch8
pad6.setExpression("Length", "Params.pad6_length")

# Sketch on XZ plane
sketch9 = doc.addObject("Sketcher::SketchObject", "Sketch008")
body.addObject(sketch9)
sketch9.AttachmentSupport = (doc.XZ_Plane, [""])
sketch9.MapMode = "FlatFace"
sketch9.AttachmentOffset = App.Placement(App.Vector(0, 0, -10), App.Rotation())
sketch9.addGeometry(Part.LineSegment(App.Vector(97, -102, 0), App.Vector(73.416876, -102, 0)), False)  # 0
sketch9.addGeometry(Part.LineSegment(App.Vector(73.416876, -102, 0), App.Vector(73.416876, -100, 0)), False)  # 1
sketch9.addGeometry(Part.ArcOfCircle(Part.Circle(App.Vector(73.416876, -97, 0), App.Vector(0, 0, 1), 3), math.radians(-90), math.radians(22.88538)), False)  # 2
sketch9.addGeometry(Part.ArcOfCircle(Part.Circle(App.Vector(90, -90, 0), App.Vector(0, 0, 1), 15), math.radians(67.11462), math.radians(202.88538)), False)  # 3
sketch9.addGeometry(Part.ArcOfCircle(Part.Circle(App.Vector(97, -73.416876, 0), App.Vector(0, 0, 1), 3), math.radians(-112.88538), math.radians(0)), False)  # 4
sketch9.addGeometry(Part.LineSegment(App.Vector(100, -73.416876, 0), App.Vector(102, -73.416876, 0)), False)  # 5
sketch9.addGeometry(Part.LineSegment(App.Vector(102, -73.416876, 0), App.Vector(102, -97, 0)), False)  # 6
sketch9.addGeometry(Part.ArcOfCircle(Part.Circle(App.Vector(97, -97, 0), App.Vector(0, 0, 1), 5), math.radians(-90), math.radians(0)), False)  # 7
add_polygon(sketch9, [(83, -83), (83, -97), (97, -97), (97, -83)])  # lines 8-11
sketch9.addConstraint([
    Sketcher.Constraint("Coincident", 0, 2, 1, 1),
    Sketcher.Constraint("Coincident", 1, 2, 2, 1),
    Sketcher.Constraint("Tangent", 2, 2, 3, 2),
    Sketcher.Constraint("Tangent", 3, 1, 4, 1),
    Sketcher.Constraint("Coincident", 4, 2, 5, 1),
    Sketcher.Constraint("Coincident", 5, 2, 6, 1),
    Sketcher.Constraint("Tangent", 6, 2, 7, 2),
    Sketcher.Constraint("Tangent", 7, 1, 0, 1),
    Sketcher.Constraint("Horizontal", 0),
    Sketcher.Constraint("Vertical", 1),
    Sketcher.Constraint("Horizontal", 5),
    Sketcher.Constraint("Vertical", 6),
    Sketcher.Constraint("Vertical", 8),
    Sketcher.Constraint("Horizontal", 9),
    Sketcher.Constraint("Vertical", 10),
    Sketcher.Constraint("Horizontal", 11),
    Sketcher.Constraint("Coincident", 9, 2, 7, 3),
    Sketcher.Constraint("Equal", 2, 4),
    Sketcher.Constraint("Horizontal", 2, 3, 7, 3),
    Sketcher.Constraint("Vertical", 4, 3, 7, 3),
    Sketcher.Constraint("Vertical", 2, 3, 0, 2),
    Sketcher.Constraint("Equal", 0, 6),
    Sketcher.Constraint("Equal", 11, 8),
    Sketcher.Constraint("Radius", 2, Q("3 mm")),
    Sketcher.Constraint("Radius", 3, Q("15 mm")),
    Sketcher.Constraint("Radius", 7, Q("5 mm")),
    Sketcher.Constraint("DistanceX", 9, 1, 9, 2, Q("14 mm")),
    Sketcher.Constraint("DistanceY", 2, 3, -1, 1, Q("97 mm")),
    Sketcher.Constraint("DistanceX", -1, 1, 3, 3, Q("90 mm")),
    Sketcher.Constraint("DistanceY", 3, 3, -1, 1, Q("90 mm")),
    Sketcher.Constraint("DistanceX", -1, 1, 4, 3, Q("97 mm")),
])
sketch9.setExpression("Constraints[27]", "Params.sketch9_radius")
sketch9.setExpression("Constraints[28]", "Params.sketch9_radius2")
sketch9.setExpression("Constraints[29]", "Params.sketch9_radius3")
sketch9.setExpression("Constraints[30]", "Params.sketch9_width")
pad7 = doc.addObject("PartDesign::Pad", "Pad006")
body.addObject(pad7)
pad7.Profile = sketch9
pad7.setExpression("Length", "Params.pad7_length")

# Sketch on XZ plane
sketch10 = doc.addObject("Sketcher::SketchObject", "Sketch009")
body.addObject(sketch10)
sketch10.AttachmentSupport = (doc.XZ_Plane, [""])
sketch10.MapMode = "FlatFace"
sketch10.AttachmentOffset = App.Placement(App.Vector(0, 0, -18), App.Rotation())
sketch10.addGeometry([
    Part.LineSegment(App.Vector(-2, -73.416876, 0), App.Vector(0, -73.416876, 0)),  # 0
    Part.LineSegment(App.Vector(0, -73.416876, 0), App.Vector(0, -97, 0)),  # 1
    Part.ArcOfCircle(Part.Circle(App.Vector(3, -97, 0), App.Vector(0, 0, 1), 3), math.radians(180), math.radians(270)),  # 2
    Part.LineSegment(App.Vector(3, -100, 0), App.Vector(26.583124, -100, 0)),  # 3
    Part.LineSegment(App.Vector(26.583124, -100, 0), App.Vector(26.583124, -102, 0)),  # 4
    Part.LineSegment(App.Vector(26.583124, -102, 0), App.Vector(3, -102, 0)),  # 5
    Part.ArcOfCircle(Part.Circle(App.Vector(3, -97, 0), App.Vector(0, 0, 1), 5), math.radians(180), math.radians(270)),  # 6
    Part.LineSegment(App.Vector(-2, -97, 0), App.Vector(-2, -73.416876, 0)),  # 7
    Part.LineSegment(App.Vector(73.416876, -102, 0), App.Vector(73.416876, -100, 0)),  # 8
    Part.LineSegment(App.Vector(73.416876, -100, 0), App.Vector(97, -100, 0)),  # 9
    Part.ArcOfCircle(Part.Circle(App.Vector(97, -97, 0), App.Vector(0, 0, 1), 3), math.radians(-90), math.radians(0)),  # 10
    Part.LineSegment(App.Vector(100, -97, 0), App.Vector(100, -73.416876, 0)),  # 11
    Part.LineSegment(App.Vector(100, -73.416876, 0), App.Vector(102, -73.416876, 0)),  # 12
    Part.LineSegment(App.Vector(102, -73.416876, 0), App.Vector(102, -97, 0)),  # 13
    Part.ArcOfCircle(Part.Circle(App.Vector(97, -97, 0), App.Vector(0, 0, 1), 5), math.radians(-90), math.radians(0)),  # 14
    Part.LineSegment(App.Vector(97, -102, 0), App.Vector(73.416876, -102, 0)),  # 15
], False)
sketch10.addConstraint([
    Sketcher.Constraint("Coincident", 0, 2, 1, 1),
    Sketcher.Constraint("Tangent", 1, 2, 2, 1),
    Sketcher.Constraint("Tangent", 2, 2, 3, 1),
    Sketcher.Constraint("Coincident", 3, 2, 4, 1),
    Sketcher.Constraint("Coincident", 4, 2, 5, 1),
    Sketcher.Constraint("Tangent", 5, 2, 6, 2),
    Sketcher.Constraint("Tangent", 6, 1, 7, 1),
    Sketcher.Constraint("Coincident", 7, 2, 0, 1),
    Sketcher.Constraint("Coincident", 8, 2, 9, 1),
    Sketcher.Constraint("Tangent", 9, 2, 10, 1),
    Sketcher.Constraint("Tangent", 10, 2, 11, 1),
    Sketcher.Constraint("Coincident", 11, 2, 12, 1),
    Sketcher.Constraint("Coincident", 12, 2, 13, 1),
    Sketcher.Constraint("Tangent", 13, 2, 14, 2),
    Sketcher.Constraint("Tangent", 14, 1, 15, 1),
    Sketcher.Constraint("Coincident", 15, 2, 8, 1),
    Sketcher.Constraint("Horizontal", 0),
    Sketcher.Constraint("Vertical", 1),
    Sketcher.Constraint("Horizontal", 3),
    Sketcher.Constraint("Vertical", 4),
    Sketcher.Constraint("Horizontal", 5),
    Sketcher.Constraint("Vertical", 7),
    Sketcher.Constraint("Vertical", 8),
    Sketcher.Constraint("Horizontal", 9),
    Sketcher.Constraint("Vertical", 11),
    Sketcher.Constraint("Horizontal", 12),
    Sketcher.Constraint("Vertical", 13),
    Sketcher.Constraint("Horizontal", 15),
    Sketcher.Constraint("Coincident", 6, 3, 2, 3),
    Sketcher.Constraint("Coincident", 14, 3, 10, 3),
    Sketcher.Constraint("Equal", 2, 10),
    Sketcher.Constraint("Equal", 6, 14),
    Sketcher.Constraint("PointOnObject", 0, 2, -2),
    Sketcher.Constraint("Horizontal", 6, 3, 10, 3),
    Sketcher.Constraint("Horizontal", 7, 2, 11, 2),
    Sketcher.Constraint("Equal", 5, 9),
    Sketcher.Constraint("Equal", 15, 1),
    Sketcher.Constraint("Radius", 2, Q("3 mm")),
    Sketcher.Constraint("Radius", 6, Q("5 mm")),
    Sketcher.Constraint("DistanceY", 2, 3, -1, 1, Q("97 mm")),
    Sketcher.Constraint("DistanceX", -1, 1, 10, 3, Q("97 mm")),
    Sketcher.Constraint("DistanceX", 3, 1, 3, 2, Q("23.583124 mm")),
])
sketch10.setExpression("Constraints[37]", "Params.sketch10_radius")
sketch10.setExpression("Constraints[38]", "Params.sketch10_radius2")
pad8 = doc.addObject("PartDesign::Pad", "Pad007")
body.addObject(pad8)
pad8.Profile = sketch10
pad8.setExpression("Length", "Params.pad8_length")
doc.recompute()

chamfer = doc.addObject("PartDesign::Chamfer", "Chamfer")
body.addObject(chamfer)
chamfer.Base = (pad8, edges_at(pad8, [
    (50, 0, 2),
    (-0.536, 0, 0.536),
    (-2, 0, -38.208),
    (0.236, 0, -77.584),
    (22.416, 0, -99.764),
    (50, 0, -102),
    (77.584, 0, -99.764),
    (99.764, 0, -77.584),
    (102, 0, -38.208),
    (100.536, 0, 0.536),
    (80.808, 0, -80.808),
    (19.192, 0, -80.808),
]))
chamfer.setExpression("Size", "Params.chamfer_size")
doc.recompute()

chamfer2 = doc.addObject("PartDesign::Chamfer", "Chamfer001")
body.addObject(chamfer2)
chamfer2.Base = (chamfer, edges_at(chamfer, [
    (50, 18, 2),
    (100.536, 18, 0.536),
    (102, 18, -50),
    (50, 18, -102),
    (-2, 18, -50),
    (-0.536, 18, 0.536),
    (100.536, 18, -100.536),
    (-0.536, 18, -100.536),
]))
chamfer2.setExpression("Size", "Params.chamfer2_size")

doc.recompute()
